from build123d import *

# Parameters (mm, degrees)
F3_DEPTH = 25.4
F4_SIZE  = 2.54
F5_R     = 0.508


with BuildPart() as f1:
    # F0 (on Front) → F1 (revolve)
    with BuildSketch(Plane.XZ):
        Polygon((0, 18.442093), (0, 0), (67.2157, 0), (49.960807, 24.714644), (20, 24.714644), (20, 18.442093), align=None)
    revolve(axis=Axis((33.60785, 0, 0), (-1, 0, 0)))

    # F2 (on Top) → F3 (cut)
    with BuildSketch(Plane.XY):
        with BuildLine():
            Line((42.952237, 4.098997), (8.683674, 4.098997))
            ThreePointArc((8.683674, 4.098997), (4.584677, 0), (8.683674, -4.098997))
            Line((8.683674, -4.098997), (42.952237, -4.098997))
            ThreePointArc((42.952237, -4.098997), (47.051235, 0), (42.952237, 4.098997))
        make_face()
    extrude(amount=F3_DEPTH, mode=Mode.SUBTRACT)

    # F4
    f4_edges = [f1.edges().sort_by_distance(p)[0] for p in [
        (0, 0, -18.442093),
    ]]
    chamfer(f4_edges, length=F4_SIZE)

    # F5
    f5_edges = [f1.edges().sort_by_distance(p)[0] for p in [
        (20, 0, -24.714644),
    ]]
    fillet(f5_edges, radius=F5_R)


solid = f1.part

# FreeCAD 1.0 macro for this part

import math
import FreeCAD as App
import Part
import Sketcher
Q = App.Units.Quantity


def edges_at(feature, points):
    """Names of the edges that pass closest to the given points."""
    edges = feature.Shape.Edges
    near = lambda p: min(range(len(edges)), key=lambda i: edges[i].distToShape(Part.Vertex(*p))[0])
    return sorted({f"Edge{near(p) + 1}" for p in points})


def add_polygon(sketch, points):
    """Adds a closed chain of lines whose ends are joined by coincident constraints."""
    first, n = sketch.GeometryCount, len(points)
    for a, b in zip(points, points[1:] + points[:1]):
        sketch.addGeometry(Part.LineSegment(App.Vector(*a, 0), App.Vector(*b, 0)), False)
    for i in range(n):
        sketch.addConstraint(Sketcher.Constraint("Coincident", first + i, 2, first + (i + 1) % n, 1))

doc = App.newDocument("Part")
body = doc.addObject("PartDesign::Body", "Body")

# Sketch on XZ plane
sketch1 = body.newObject("Sketcher::SketchObject", "Sketch")
sketch1.AttachmentSupport = (doc.getObject("XZ_Plane"), [""])
sketch1.MapMode = "FlatFace"
add_polygon(sketch1, [(0, 18), (0, 0), (67, 0), (50, 25), (20, 25), (20, 18)])  # lines 0-5
sketch1.addConstraint([
    Sketcher.Constraint("Vertical", 0),
    Sketcher.Constraint("Horizontal", 1),
    Sketcher.Constraint("Horizontal", 3),
    Sketcher.Constraint("Vertical", 4),
    Sketcher.Constraint("Horizontal", 5),
    Sketcher.Constraint("Coincident", 0, 2, -1, 1),
    Sketcher.Constraint("DistanceX", 1, 1, 1, 2, 67.2157),
    Sketcher.Constraint("DistanceX", 5, 2, 5, 1, 20.0),
    Sketcher.Constraint("DistanceY", 4, 2, 4, 1, 6.272551),
    Sketcher.Constraint("Distance", 2, 30.14208),
    Sketcher.Constraint("DistanceX", 3, 2, 3, 1, 29.960807),
])
revolution = body.newObject("PartDesign::Revolution", "Revolution")
revolution.Profile = sketch1
revolution.ReferenceAxis = (sketch1, ["H_Axis"])
revolution.Angle = 360

# Sketch on XY plane
sketch2 = body.newObject("Sketcher::SketchObject", "Sketch001")
sketch2.AttachmentSupport = (doc.getObject("XY_Plane"), [""])
sketch2.MapMode = "FlatFace"
sketch2.addGeometry([
    Part.LineSegment(App.Vector(43, 4.1, 0), App.Vector(8.7, 4.1, 0)),
    Part.ArcOfCircle(Part.Circle(App.Vector(8.7, 0, 0), App.Vector(0, 0, 1), 4.1), math.radians(90), math.radians(270)),
    Part.LineSegment(App.Vector(8.7, -4.1, 0), App.Vector(43, -4.1, 0)),
    Part.ArcOfCircle(Part.Circle(App.Vector(43, 0, 0), App.Vector(0, 0, 1), 4.1), math.radians(-90), math.radians(90)),
], False)
sketch2.addConstraint([
    Sketcher.Constraint("Tangent", 0, 2, 1, 1),
    Sketcher.Constraint("Tangent", 1, 2, 2, 1),
    Sketcher.Constraint("Tangent", 2, 2, 3, 1),
    Sketcher.Constraint("Tangent", 3, 2, 0, 1),
    Sketcher.Constraint("Horizontal", 0),
    Sketcher.Constraint("Horizontal", 2),
    Sketcher.Constraint("PointOnObject", 1, 3, -1),
    Sketcher.Constraint("Radius", 1, 4.098997),
    Sketcher.Constraint("DistanceX", 0, 2, 0, 1, 34.268563),
    Sketcher.Constraint("DistanceX", -1, 1, 1, 3, 8.683674),
])
pocket1 = body.newObject("PartDesign::Pocket", "Pocket")
pocket1.Profile = sketch2
pocket1.Length = Q("1 in")
pocket1.Reversed = True
doc.recompute()

chamfer = body.newObject("PartDesign::Chamfer", "Chamfer")
chamfer.Base = (pocket1, edges_at(pocket1, [(0, 0, -18.442)]))
chamfer.Size = Q("0.1 in")
doc.recompute()

fillet = body.newObject("PartDesign::Fillet", "Fillet")
fillet.Base = (chamfer, edges_at(chamfer, [(20, 0, -24.715)]))
fillet.Radius = Q("0.02 in")

doc.recompute()
